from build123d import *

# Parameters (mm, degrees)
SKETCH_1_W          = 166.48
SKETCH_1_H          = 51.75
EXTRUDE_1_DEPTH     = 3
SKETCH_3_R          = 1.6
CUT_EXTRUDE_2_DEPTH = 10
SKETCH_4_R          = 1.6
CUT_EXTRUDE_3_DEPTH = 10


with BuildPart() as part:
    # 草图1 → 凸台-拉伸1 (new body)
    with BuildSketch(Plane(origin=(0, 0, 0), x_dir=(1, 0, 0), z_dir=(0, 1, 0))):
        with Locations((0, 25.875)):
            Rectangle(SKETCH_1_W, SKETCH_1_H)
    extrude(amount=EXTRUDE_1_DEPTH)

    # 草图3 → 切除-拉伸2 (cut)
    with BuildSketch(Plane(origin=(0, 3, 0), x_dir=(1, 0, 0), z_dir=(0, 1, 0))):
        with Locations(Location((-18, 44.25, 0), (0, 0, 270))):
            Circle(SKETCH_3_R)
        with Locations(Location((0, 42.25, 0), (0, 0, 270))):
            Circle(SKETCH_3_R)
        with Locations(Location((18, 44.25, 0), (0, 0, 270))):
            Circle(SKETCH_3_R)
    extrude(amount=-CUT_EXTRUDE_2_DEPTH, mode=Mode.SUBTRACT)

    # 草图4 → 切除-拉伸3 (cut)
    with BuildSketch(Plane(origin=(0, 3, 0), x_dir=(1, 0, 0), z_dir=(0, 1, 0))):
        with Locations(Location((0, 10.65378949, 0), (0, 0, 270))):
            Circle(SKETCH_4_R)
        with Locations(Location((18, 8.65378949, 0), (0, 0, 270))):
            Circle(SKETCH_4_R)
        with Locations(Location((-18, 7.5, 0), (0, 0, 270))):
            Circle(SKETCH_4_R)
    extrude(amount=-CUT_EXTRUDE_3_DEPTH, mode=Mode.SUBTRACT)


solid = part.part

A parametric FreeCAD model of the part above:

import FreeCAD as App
import Part
import Sketcher
from FreeCAD import Vector

doc = App.newDocument("Part")
body = doc.addObject("PartDesign::Body", "Body")

sketch1 = body.newObject("Sketcher::SketchObject", "Sketch")
sketch1.AttachmentSupport = (doc.getObject("XZ_Plane"), [""])
sketch1.MapMode = "FlatFace"
sketch1.addGeometry([
    Part.LineSegment(Vector(-83, -52, 0), Vector(-83, 0, 0)),
    Part.LineSegment(Vector(-83, 0, 0), Vector(83, 0, 0)),
    Part.LineSegment(Vector(83, 0, 0), Vector(83, -52, 0)),
    Part.LineSegment(Vector(83, -52, 0), Vector(-83, -52, 0)),
], False)
sketch1.addConstraint([
    Sketcher.Constraint("Coincident", 0, 2, 1, 1),
    Sketcher.Constraint("Coincident", 1, 2, 2, 1),
    Sketcher.Constraint("Coincident", 2, 2, 3, 1),
    Sketcher.Constraint("Coincident", 3, 2, 0, 1),
    Sketcher.Constraint("Vertical", 0),
    Sketcher.Constraint("Horizontal", 1),
    Sketcher.Constraint("Vertical", 2),
    Sketcher.Constraint("Horizontal", 3),
    Sketcher.Constraint("Symmetric", 0, 2, 1, 2, -1, 1),
    Sketcher.Constraint("DistanceX", 1, 1, 1, 2, 166.48),
    Sketcher.Constraint("DistanceY", 0, 1, 0, 2, 51.75),
])
pad1 = body.newObject("PartDesign::Pad", "Pad")
pad1.Profile = sketch1
pad1.Length = 3
pad1.Reversed = True

sketch2 = body.newObject("Sketcher::SketchObject", "Sketch001")
sketch2.AttachmentSupport = (doc.getObject("XZ_Plane"), [""])
sketch2.MapMode = "FlatFace"
sketch2.AttachmentOffset = App.Placement(Vector(0, 0, -3), App.Rotation())
sketch2.addGeometry([
    Part.Circle(Vector(-18, -44.2, 0), Vector(0, 0, 1), 1.6),
    Part.Circle(Vector(0, -42.2, 0), Vector(0, 0, 1), 1.6),
    Part.Circle(Vector(18, -44.2, 0), Vector(0, 0, 1), 1.6),
], False)
sketch2.addConstraint([
    Sketcher.Constraint("Equal", 0, 1),
    Sketcher.Constraint("Equal", 1, 2),
    Sketcher.Constraint("Symmetric", 0, 3, 2, 3, -2),
    Sketcher.Constraint("PointOnObject", 1, 3, -2),
    Sketcher.Constraint("Diameter", 0, 3.2),
    Sketcher.Constraint("DistanceX", 0, 3, -1, 1, 18.0),
    Sketcher.Constraint("DistanceY", 0, 3, 1, 3, 2.0),
    Sketcher.Constraint("DistanceY", 0, 3, -1, 1, 44.25),
])
pocket1 = body.newObject("PartDesign::Pocket", "Pocket")
pocket1.Profile = sketch2
pocket1.Length = 10
pocket1.Reversed = True

sketch3 = body.newObject("Sketcher::SketchObject", "Sketch002")
sketch3.AttachmentSupport = (doc.getObject("XZ_Plane"), [""])
sketch3.MapMode = "FlatFace"
sketch3.AttachmentOffset = App.Placement(Vector(0, 0, -3), App.Rotation())
sketch3.addGeometry([
    Part.Circle(Vector(0, -10.7, 0), Vector(0, 0, 1), 1.6),
    Part.Circle(Vector(18, -8.7, 0), Vector(0, 0, 1), 1.6),
    Part.Circle(Vector(-18, -7.5, 0), Vector(0, 0, 1), 1.6),
], False)
sketch3.addConstraint([
    Sketcher.Constraint("Equal", 0, 1),
    Sketcher.Constraint("Equal", 1, 2),
    Sketcher.Constraint("PointOnObject", 0, 3, -2),
    Sketcher.Constraint("Diameter", 0, 3.2),
    Sketcher.Constraint("DistanceX", -1, 1, 1, 3, 18.0),
    Sketcher.Constraint("DistanceX", 2, 3, -1, 1, 18.0),
    Sketcher.Constraint("DistanceY", 0, 3, 1, 3, 2.0),
    Sketcher.Constraint("DistanceY", 2, 3, -1, 1, 7.5),
    Sketcher.Constraint("DistanceY", 0, 3, -1, 1, 10.653789),
])
pocket2 = body.newObject("PartDesign::Pocket", "Pocket001")
pocket2.Profile = sketch3
pocket2.Length = 10
pocket2.Reversed = True

doc.recompute()
